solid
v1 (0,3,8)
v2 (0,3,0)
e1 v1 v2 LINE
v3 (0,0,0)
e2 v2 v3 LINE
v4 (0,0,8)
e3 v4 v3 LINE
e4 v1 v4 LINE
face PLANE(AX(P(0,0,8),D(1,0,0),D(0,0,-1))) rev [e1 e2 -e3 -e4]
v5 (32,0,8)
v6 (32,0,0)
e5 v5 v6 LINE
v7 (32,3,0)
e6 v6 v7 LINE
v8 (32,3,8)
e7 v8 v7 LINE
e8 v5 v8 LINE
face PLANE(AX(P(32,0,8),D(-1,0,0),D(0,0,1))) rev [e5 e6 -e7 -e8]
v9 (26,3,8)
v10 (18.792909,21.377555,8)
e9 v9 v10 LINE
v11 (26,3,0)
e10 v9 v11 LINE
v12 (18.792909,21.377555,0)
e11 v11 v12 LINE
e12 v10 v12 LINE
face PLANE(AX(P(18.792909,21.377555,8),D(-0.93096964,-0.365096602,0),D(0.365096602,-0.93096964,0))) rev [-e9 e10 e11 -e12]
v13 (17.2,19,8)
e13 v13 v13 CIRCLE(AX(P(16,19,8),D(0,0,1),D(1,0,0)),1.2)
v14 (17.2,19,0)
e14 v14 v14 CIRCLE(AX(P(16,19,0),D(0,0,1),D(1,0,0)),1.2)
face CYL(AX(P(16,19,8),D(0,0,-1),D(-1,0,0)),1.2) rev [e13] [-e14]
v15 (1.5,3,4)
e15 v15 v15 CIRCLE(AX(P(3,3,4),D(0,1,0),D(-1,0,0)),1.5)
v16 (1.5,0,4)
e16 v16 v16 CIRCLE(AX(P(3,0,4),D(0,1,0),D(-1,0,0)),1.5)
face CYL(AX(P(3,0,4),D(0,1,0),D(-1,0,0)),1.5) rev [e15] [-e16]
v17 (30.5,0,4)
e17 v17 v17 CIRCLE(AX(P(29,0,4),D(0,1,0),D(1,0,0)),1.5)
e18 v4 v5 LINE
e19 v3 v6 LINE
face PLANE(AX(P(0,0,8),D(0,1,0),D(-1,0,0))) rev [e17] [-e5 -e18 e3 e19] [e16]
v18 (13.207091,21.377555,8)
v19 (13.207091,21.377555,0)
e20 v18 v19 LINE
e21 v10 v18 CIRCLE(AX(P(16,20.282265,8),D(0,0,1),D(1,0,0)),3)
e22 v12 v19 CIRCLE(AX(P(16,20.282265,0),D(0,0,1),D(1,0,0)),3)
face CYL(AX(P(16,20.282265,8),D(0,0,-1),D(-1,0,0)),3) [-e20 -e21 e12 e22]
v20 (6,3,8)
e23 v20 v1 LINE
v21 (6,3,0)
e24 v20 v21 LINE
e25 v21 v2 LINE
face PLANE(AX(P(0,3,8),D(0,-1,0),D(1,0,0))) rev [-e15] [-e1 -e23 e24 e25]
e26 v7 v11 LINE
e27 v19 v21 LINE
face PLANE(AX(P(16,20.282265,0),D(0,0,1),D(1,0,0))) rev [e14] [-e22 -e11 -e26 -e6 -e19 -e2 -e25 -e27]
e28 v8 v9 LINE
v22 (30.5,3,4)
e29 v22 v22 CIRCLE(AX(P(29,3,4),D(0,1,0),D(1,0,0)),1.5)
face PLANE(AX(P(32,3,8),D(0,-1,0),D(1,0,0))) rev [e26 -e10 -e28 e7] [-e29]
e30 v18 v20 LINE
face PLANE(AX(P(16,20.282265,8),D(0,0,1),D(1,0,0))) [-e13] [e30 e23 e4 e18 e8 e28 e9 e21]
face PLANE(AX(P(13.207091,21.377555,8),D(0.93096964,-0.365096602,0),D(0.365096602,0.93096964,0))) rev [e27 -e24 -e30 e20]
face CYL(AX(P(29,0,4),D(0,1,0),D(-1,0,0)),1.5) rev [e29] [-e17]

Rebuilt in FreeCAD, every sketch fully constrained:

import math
import FreeCAD as App
import Part
import Sketcher
from FreeCAD import Vector

doc = App.newDocument("Part")
body = doc.addObject("PartDesign::Body", "Body")

sketch1 = body.newObject("Sketcher::SketchObject", "Sketch")
sketch1.AttachmentSupport = (doc.getObject("XY_Plane"), [""])
sketch1.MapMode = "FlatFace"
sketch1.addGeometry(Part.LineSegment(Vector(0, 0, 0), Vector(32, 0, 0)), False)
sketch1.addGeometry(Part.LineSegment(Vector(32, 0, 0), Vector(32, 3, 0)), False)
sketch1.addGeometry(Part.LineSegment(Vector(32, 3, 0), Vector(26, 3, 0)), False)
sketch1.addGeometry(Part.LineSegment(Vector(26, 3, 0), Vector(18.8, 21.4, 0)), False)
sketch1.addGeometry(Part.ArcOfCircle(Part.Circle(Vector(16, 20.3, 0), Vector(0, 0, 1), 3), math.radians(21), math.radians(159)), False)
sketch1.addGeometry(Part.LineSegment(Vector(13.2, 21.4, 0), Vector(6, 3, 0)), False)
sketch1.addGeometry(Part.LineSegment(Vector(6, 3, 0), Vector(0, 3, 0)), False)
sketch1.addGeometry(Part.LineSegment(Vector(0, 3, 0), Vector(0, 0, 0)), False)
sketch1.addGeometry(Part.Circle(Vector(16, 19, 0), Vector(0, 0, 1), 1.2), False)
sketch1.addConstraint(Sketcher.Constraint("Coincident", 0, 2, 1, 1))
sketch1.addConstraint(Sketcher.Constraint("Coincident", 1, 2, 2, 1))
sketch1.addConstraint(Sketcher.Constraint("Coincident", 2, 2, 3, 1))
sketch1.addConstraint(Sketcher.Constraint("Tangent", 3, 2, 4, 1))
sketch1.addConstraint(Sketcher.Constraint("Tangent", 4, 2, 5, 1))
sketch1.addConstraint(Sketcher.Constraint("Coincident", 5, 2, 6, 1))
sketch1.addConstraint(Sketcher.Constraint("Coincident", 6, 2, 7, 1))
sketch1.addConstraint(Sketcher.Constraint("Coincident", 7, 2, 0, 1))
sketch1.addConstraint(Sketcher.Constraint("Horizontal", 0))
sketch1.addConstraint(Sketcher.Constraint("Vertical", 1))
sketch1.addConstraint(Sketcher.Constraint("Horizontal", 2))
sketch1.addConstraint(Sketcher.Constraint("Horizontal", 6))
sketch1.addConstraint(Sketcher.Constraint("Vertical", 7))
sketch1.addConstraint(Sketcher.Constraint("Coincident", 7, 2, -1, 1))
sketch1.addConstraint(Sketcher.Constraint("Horizontal", 3, 2, 4, 2))
sketch1.addConstraint(Sketcher.Constraint("Horizontal", 2, 2, 5, 2))
sketch1.addConstraint(Sketcher.Constraint("Vertical", 4, 3, 8, 3))
sketch1.addConstraint(Sketcher.Constraint("Equal", 2, 6))
sketch1.addConstraint(Sketcher.Constraint("Radius", 4, 3.0))
sketch1.addConstraint(Sketcher.Constraint("Diameter", 8, 2.4))
sketch1.addConstraint(Sketcher.Constraint("DistanceX", 0, 1, 0, 2, 32.0))
sketch1.addConstraint(Sketcher.Constraint("DistanceX", 2, 2, 2, 1, 6.0))
sketch1.addConstraint(Sketcher.Constraint("DistanceY", 1, 1, 1, 2, 3.0))
sketch1.addConstraint(Sketcher.Constraint("DistanceY", -1, 1, 8, 3, 19.0))
sketch1.addConstraint(Sketcher.Constraint("Distance", 3, 19.74023))
pad1 = body.newObject("PartDesign::Pad", "Pad")
pad1.Profile = sketch1
pad1.Length = 8

sketch2 = body.newObject("Sketcher::SketchObject", "Sketch001")
sketch2.AttachmentSupport = (doc.getObject("XZ_Plane"), [""])
sketch2.MapMode = "FlatFace"
sketch2.AttachmentOffset = App.Placement(Vector(0, 0, -3), App.Rotation())
sketch2.addGeometry(Part.Circle(Vector(3, 4, 0), Vector(0, 0, 1), 1.5), False)
sketch2.addGeometry(Part.Circle(Vector(29, 4, 0), Vector(0, 0, 1), 1.5), False)
sketch2.addConstraint(Sketcher.Constraint("Equal", 0, 1))
sketch2.addConstraint(Sketcher.Constraint("Horizontal", 0, 3, 1, 3))
sketch2.addConstraint(Sketcher.Constraint("Diameter", 0, 3.0))
sketch2.addConstraint(Sketcher.Constraint("DistanceX", -1, 1, 0, 3, 3.0))
sketch2.addConstraint(Sketcher.Constraint("DistanceY", -1, 1, 0, 3, 4.0))
sketch2.addConstraint(Sketcher.Constraint("DistanceX", -1, 1, 1, 3, 29.0))
pocket1 = body.newObject("PartDesign::Pocket", "Pocket")
pocket1.Profile = sketch2
pocket1.Type = "ThroughAll"
pocket1.Reversed = True

doc.recompute()
